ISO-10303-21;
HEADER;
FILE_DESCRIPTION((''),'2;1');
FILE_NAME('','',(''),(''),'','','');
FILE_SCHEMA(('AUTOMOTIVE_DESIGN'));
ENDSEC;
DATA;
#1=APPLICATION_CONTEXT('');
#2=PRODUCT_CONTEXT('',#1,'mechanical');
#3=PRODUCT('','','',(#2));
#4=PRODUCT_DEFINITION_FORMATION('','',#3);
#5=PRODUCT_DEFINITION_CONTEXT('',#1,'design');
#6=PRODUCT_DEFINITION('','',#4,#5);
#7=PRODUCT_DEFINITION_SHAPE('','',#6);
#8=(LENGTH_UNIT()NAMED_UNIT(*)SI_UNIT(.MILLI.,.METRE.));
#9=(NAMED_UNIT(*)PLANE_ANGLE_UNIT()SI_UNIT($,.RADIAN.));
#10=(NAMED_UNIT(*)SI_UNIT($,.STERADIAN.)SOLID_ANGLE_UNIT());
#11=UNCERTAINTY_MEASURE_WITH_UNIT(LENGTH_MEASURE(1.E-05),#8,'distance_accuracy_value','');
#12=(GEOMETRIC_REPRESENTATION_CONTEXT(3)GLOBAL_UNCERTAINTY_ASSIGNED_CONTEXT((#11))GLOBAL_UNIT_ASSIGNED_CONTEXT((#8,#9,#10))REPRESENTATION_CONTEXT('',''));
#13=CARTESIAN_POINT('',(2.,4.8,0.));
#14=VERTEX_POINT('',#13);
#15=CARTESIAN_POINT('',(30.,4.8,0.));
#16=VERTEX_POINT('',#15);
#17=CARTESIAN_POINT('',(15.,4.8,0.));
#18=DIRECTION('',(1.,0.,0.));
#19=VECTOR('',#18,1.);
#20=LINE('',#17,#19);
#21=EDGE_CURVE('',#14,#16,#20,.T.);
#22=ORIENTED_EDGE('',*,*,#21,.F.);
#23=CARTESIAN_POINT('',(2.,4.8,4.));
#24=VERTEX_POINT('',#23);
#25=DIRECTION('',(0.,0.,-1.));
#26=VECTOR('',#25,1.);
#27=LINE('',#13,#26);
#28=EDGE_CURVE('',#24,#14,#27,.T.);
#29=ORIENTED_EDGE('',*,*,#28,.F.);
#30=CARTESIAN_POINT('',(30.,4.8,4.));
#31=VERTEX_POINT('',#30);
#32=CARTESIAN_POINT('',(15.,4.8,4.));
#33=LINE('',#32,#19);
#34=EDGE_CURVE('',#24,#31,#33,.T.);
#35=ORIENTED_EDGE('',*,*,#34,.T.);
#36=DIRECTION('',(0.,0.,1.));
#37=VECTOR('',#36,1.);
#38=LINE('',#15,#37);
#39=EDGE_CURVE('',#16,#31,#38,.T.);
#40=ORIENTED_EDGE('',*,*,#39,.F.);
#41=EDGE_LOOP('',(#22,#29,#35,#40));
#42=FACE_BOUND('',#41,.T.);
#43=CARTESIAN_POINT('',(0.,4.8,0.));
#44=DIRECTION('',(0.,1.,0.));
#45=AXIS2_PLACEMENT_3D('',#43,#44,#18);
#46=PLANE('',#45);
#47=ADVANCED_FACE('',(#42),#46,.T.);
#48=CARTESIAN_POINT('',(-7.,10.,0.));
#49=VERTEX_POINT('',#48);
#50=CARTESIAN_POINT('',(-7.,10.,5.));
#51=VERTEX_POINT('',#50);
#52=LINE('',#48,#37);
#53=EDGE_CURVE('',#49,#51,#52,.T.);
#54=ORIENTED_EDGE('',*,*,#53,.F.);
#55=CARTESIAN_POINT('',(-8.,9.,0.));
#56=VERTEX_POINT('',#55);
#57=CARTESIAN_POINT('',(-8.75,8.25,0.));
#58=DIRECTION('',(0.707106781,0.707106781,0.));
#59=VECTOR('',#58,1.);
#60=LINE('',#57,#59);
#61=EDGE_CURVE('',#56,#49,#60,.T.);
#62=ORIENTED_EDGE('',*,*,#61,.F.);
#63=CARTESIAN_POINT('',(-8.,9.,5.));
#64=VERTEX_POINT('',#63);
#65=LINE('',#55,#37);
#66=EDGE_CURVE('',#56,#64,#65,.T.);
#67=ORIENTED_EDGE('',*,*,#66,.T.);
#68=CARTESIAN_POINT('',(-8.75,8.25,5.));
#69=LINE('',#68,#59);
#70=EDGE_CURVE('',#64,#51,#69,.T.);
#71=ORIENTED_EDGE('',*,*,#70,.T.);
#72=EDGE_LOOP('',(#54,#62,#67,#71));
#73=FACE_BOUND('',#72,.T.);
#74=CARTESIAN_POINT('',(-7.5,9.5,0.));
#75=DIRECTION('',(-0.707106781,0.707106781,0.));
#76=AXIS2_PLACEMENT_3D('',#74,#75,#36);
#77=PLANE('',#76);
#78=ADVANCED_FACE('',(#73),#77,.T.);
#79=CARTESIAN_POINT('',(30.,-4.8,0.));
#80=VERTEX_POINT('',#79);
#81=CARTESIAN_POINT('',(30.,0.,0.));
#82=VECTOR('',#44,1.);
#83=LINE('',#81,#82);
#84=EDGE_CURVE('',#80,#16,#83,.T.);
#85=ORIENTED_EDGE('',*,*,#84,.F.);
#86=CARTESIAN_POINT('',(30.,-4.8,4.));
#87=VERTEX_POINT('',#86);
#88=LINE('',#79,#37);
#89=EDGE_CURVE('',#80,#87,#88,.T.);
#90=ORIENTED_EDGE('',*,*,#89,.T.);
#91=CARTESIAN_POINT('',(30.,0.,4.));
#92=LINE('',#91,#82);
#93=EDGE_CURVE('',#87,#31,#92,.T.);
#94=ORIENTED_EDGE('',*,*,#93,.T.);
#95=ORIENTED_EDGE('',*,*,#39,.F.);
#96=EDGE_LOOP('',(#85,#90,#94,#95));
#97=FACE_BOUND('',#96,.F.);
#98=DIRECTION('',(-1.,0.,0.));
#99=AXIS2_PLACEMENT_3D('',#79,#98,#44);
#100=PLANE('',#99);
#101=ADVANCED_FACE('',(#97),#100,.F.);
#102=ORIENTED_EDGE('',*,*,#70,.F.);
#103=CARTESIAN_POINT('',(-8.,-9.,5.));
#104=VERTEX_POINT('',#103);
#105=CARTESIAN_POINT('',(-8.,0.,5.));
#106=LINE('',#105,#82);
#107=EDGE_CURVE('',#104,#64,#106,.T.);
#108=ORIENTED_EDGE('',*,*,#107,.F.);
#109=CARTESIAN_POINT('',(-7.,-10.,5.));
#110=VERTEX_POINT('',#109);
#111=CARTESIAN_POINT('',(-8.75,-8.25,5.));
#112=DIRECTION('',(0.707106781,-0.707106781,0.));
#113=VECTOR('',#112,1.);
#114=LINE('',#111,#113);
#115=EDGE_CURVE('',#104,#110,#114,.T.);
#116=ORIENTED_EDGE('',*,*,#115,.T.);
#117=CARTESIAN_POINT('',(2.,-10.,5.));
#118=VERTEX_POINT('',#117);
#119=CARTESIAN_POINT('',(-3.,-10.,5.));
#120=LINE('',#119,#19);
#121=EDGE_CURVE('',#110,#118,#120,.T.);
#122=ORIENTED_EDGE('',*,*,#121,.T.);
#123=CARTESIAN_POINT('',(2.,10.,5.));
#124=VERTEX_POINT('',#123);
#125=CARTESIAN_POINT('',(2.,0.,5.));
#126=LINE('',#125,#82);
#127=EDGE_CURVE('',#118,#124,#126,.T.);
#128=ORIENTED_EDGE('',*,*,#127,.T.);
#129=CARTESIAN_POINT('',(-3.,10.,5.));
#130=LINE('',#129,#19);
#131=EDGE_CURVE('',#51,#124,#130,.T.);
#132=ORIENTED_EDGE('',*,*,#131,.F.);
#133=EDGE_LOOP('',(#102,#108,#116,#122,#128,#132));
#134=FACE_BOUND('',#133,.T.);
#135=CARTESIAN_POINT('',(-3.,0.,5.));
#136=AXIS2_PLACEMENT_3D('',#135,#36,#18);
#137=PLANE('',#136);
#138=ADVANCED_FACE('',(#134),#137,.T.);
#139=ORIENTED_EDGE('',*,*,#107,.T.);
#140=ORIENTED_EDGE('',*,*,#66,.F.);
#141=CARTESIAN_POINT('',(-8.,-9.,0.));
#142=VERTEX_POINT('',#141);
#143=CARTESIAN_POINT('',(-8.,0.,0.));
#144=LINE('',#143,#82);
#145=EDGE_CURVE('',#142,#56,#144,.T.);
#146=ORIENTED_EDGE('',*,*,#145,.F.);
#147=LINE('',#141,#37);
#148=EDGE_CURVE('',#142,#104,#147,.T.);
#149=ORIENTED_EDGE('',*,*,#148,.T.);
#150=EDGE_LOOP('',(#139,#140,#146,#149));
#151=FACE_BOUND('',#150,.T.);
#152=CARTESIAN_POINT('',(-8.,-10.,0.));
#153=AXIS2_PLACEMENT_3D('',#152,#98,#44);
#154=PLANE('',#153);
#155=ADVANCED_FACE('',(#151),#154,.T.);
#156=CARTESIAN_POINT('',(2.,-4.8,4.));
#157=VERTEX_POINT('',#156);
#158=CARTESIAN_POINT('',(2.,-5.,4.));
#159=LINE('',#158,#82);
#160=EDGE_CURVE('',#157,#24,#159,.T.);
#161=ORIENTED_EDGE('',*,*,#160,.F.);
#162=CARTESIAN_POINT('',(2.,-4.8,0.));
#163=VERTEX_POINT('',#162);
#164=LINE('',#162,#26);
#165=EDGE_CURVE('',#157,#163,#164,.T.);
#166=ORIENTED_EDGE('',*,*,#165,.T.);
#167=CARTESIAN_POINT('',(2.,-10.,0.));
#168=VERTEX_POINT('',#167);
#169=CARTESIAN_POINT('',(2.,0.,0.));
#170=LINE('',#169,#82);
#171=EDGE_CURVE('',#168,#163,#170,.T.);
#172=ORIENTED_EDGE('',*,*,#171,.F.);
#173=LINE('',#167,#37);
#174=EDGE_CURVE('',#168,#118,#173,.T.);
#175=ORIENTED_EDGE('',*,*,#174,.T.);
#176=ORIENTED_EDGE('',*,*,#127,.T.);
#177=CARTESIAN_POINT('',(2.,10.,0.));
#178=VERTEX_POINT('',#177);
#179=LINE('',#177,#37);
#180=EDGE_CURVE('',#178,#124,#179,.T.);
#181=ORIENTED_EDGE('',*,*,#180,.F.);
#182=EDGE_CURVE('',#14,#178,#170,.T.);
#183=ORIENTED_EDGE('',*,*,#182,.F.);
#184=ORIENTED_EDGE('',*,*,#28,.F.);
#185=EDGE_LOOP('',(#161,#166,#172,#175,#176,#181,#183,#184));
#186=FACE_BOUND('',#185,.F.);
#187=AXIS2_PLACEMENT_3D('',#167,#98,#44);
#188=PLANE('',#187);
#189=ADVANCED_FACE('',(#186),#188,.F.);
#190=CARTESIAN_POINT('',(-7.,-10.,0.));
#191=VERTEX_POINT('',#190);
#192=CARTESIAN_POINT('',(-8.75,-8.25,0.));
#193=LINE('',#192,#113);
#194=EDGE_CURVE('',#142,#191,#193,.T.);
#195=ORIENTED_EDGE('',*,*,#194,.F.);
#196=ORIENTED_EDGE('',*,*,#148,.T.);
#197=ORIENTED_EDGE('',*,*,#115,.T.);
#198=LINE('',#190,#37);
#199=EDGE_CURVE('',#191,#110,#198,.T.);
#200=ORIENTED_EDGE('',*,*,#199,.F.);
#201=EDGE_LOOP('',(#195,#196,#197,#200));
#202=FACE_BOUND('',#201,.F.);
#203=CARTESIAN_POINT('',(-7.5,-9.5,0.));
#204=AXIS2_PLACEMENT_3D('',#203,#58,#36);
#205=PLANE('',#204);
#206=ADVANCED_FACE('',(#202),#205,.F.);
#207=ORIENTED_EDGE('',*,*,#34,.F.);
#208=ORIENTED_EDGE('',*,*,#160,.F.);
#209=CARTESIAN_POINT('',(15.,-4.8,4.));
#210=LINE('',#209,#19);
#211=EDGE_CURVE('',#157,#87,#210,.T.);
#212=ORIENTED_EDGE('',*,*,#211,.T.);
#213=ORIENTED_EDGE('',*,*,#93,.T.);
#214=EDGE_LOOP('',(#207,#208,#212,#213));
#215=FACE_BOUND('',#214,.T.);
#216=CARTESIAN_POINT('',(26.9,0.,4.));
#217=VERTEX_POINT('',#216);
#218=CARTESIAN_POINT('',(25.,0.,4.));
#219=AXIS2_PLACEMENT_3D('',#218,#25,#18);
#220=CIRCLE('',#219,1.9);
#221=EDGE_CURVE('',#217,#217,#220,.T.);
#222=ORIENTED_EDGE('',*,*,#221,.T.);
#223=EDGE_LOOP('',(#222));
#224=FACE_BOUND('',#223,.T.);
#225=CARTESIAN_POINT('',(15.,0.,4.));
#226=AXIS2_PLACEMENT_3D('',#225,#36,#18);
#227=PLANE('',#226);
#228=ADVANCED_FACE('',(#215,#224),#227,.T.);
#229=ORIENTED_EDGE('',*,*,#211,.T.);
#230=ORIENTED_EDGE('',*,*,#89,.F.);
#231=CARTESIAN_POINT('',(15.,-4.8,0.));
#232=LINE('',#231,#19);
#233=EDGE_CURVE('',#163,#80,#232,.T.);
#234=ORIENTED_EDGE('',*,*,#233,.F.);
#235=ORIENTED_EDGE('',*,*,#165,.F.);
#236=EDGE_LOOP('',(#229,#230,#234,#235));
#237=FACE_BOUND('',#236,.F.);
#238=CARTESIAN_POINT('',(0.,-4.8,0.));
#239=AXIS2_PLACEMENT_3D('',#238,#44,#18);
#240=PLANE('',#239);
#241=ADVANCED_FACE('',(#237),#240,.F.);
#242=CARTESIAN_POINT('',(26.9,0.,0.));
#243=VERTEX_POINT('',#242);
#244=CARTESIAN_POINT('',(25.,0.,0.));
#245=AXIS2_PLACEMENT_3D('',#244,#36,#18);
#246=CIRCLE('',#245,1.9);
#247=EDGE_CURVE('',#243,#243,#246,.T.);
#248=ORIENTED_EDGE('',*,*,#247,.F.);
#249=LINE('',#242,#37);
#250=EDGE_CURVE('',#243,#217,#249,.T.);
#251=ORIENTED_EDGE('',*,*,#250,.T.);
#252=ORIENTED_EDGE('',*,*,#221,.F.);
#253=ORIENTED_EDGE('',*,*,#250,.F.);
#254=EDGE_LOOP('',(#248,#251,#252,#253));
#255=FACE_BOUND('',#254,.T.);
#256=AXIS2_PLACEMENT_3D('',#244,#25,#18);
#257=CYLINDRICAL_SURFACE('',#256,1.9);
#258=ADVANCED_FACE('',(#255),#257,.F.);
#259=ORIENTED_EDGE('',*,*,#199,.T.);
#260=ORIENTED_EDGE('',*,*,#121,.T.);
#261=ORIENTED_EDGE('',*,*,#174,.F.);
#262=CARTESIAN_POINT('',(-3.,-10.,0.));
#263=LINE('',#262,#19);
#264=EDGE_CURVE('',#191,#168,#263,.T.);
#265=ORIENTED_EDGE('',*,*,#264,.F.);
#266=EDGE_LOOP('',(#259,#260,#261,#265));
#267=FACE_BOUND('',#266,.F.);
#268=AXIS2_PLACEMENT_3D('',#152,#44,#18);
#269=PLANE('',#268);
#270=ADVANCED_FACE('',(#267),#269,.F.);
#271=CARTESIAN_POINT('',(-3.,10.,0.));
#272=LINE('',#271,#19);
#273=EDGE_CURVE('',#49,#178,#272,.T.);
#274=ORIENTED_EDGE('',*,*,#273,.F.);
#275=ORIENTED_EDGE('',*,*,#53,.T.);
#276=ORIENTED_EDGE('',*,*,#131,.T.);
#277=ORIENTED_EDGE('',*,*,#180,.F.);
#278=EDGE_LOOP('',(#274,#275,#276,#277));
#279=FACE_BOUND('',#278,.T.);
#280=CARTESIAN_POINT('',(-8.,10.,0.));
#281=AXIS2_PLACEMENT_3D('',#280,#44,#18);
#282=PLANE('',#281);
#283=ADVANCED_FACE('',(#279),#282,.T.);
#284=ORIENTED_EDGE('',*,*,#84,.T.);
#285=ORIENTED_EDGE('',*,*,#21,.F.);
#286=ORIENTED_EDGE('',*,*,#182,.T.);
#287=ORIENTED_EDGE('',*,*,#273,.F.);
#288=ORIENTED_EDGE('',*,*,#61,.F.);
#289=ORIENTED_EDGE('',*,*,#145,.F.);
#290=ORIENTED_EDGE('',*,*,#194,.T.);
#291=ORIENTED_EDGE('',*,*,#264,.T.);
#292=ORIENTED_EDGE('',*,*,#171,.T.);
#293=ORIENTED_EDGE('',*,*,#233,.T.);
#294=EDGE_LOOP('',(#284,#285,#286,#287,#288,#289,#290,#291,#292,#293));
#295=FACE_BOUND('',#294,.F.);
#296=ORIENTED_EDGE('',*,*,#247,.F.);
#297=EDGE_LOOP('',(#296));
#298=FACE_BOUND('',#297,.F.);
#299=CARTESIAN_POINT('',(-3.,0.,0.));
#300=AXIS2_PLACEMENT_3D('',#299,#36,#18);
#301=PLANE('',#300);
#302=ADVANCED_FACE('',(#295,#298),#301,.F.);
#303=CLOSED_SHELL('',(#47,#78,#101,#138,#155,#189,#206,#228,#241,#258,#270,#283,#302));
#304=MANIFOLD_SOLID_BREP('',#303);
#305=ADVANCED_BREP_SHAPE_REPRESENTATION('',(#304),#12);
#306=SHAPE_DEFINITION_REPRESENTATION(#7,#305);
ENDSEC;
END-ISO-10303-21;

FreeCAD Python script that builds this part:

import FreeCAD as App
import Part
import Sketcher
from FreeCAD import Vector


def edges_at(feature, points):
    """Names of the edges that pass closest to the given points."""
    edges = feature.Shape.Edges
    near = lambda p: min(range(len(edges)), key=lambda i: edges[i].distToShape(Part.Vertex(*p))[0])
    return sorted({f"Edge{near(p) + 1}" for p in points})


def add_polygon(sketch, points):
    """Adds a closed chain of lines whose ends are joined by coincident constraints."""
    first, n = sketch.GeometryCount, len(points)
    for a, b in zip(points, points[1:] + points[:1]):
        sketch.addGeometry(Part.LineSegment(App.Vector(*a, 0), App.Vector(*b, 0)), False)
    for i in range(n):
        sketch.addConstraint(Sketcher.Constraint("Coincident", first + i, 2, first + (i + 1) % n, 1))

doc = App.newDocument("Part")
params = doc.addObject("Spreadsheet::Sheet", "Params")
for row, (alias, value) in enumerate([
    ("sketch1_diameter", "3.8 mm"),
    ("pad1_length", "5 mm"),
    ("sketch2_width", "30 mm"),
    ("sketch2_height", "9.6 mm"),
    ("pad2_length", "4 mm"),
    ("sketch3_width", "10 mm"),
    ("sketch3_height", "20 mm"),
    ("pad3_length", "5 mm"),
    ("chamfer_size", "1 mm"),
], start=1):
    params.set(f"A{row}", alias)
    params.set(f"B{row}", "=" + value)
    params.setAlias(f"B{row}", alias)

body = doc.addObject("PartDesign::Body", "Body")

sketch1 = body.newObject("Sketcher::SketchObject", "Sketch")
sketch1.AttachmentSupport = (doc.getObject("XY_Plane"), [""])
sketch1.MapMode = "FlatFace"
sketch1.addGeometry(Part.Circle(Vector(25, 0, 0), Vector(0, 0, 1), 1.9), False)
sketch1.addConstraint(Sketcher.Constraint("PointOnObject", 0, 3, -1))
sketch1.addConstraint(Sketcher.Constraint("Diameter", 0, 3.8))
sketch1.addConstraint(Sketcher.Constraint("DistanceX", -1, 1, 0, 3, 25.0))
sketch1.setExpression("Constraints[1]", "Params.sketch1_diameter")
pad1 = body.newObject("PartDesign::Pad", "Pad")
pad1.Profile = sketch1
pad1.setExpression("Length", "Params.pad1_length")
body2 = doc.addObject("PartDesign::Body", "Body001")

sketch2 = body2.newObject("Sketcher::SketchObject", "Sketch001")
sketch2.AttachmentSupport = (doc.getObject("XY_Plane001"), [""])
sketch2.MapMode = "FlatFace"
add_polygon(sketch2, [(0, 5), (0, -5), (30, -5), (30, 5)])
sketch2.addConstraint(Sketcher.Constraint("Vertical", 0))
sketch2.addConstraint(Sketcher.Constraint("Horizontal", 1))
sketch2.addConstraint(Sketcher.Constraint("Vertical", 2))
sketch2.addConstraint(Sketcher.Constraint("Horizontal", 3))
sketch2.addConstraint(Sketcher.Constraint("Symmetric", 0, 2, 3, 2, -1, 1))
sketch2.addConstraint(Sketcher.Constraint("DistanceX", 1, 1, 1, 2, 30.0))
sketch2.addConstraint(Sketcher.Constraint("DistanceY", 0, 2, 0, 1, 9.6))
sketch2.setExpression("Constraints[9]", "Params.sketch2_width")
sketch2.setExpression("Constraints[10]", "Params.sketch2_height")
pad2 = body2.newObject("PartDesign::Pad", "Pad001")
pad2.Profile = sketch2
pad2.setExpression("Length", "Params.pad2_length")
doc.recompute()

boolean = body2.newObject("PartDesign::Boolean", "Boolean")
boolean.Type = "Cut"
boolean.addObjects([body])
body3 = doc.addObject("PartDesign::Body", "Body002")

sketch3 = body3.newObject("Sketcher::SketchObject", "Sketch002")
sketch3.AttachmentSupport = (doc.getObject("XY_Plane002"), [""])
sketch3.MapMode = "FlatFace"
add_polygon(sketch3, [(-8, 10), (-8, -10), (2, -10), (2, 10)])
sketch3.addConstraint(Sketcher.Constraint("Vertical", 0))
sketch3.addConstraint(Sketcher.Constraint("Horizontal", 1))
sketch3.addConstraint(Sketcher.Constraint("Vertical", 2))
sketch3.addConstraint(Sketcher.Constraint("Horizontal", 3))
sketch3.addConstraint(Sketcher.Constraint("DistanceX", 1, 1, 1, 2, 10.0))
sketch3.addConstraint(Sketcher.Constraint("DistanceY", 0, 2, 0, 1, 20.0))
sketch3.addConstraint(Sketcher.Constraint("DistanceX", 0, 2, -1, 1, 8.0))
sketch3.addConstraint(Sketcher.Constraint("DistanceY", 0, 2, -1, 1, 10.0))
sketch3.setExpression("Constraints[8]", "Params.sketch3_width")
sketch3.setExpression("Constraints[9]", "Params.sketch3_height")
pad3 = body3.newObject("PartDesign::Pad", "Pad002")
pad3.Profile = sketch3
pad3.setExpression("Length", "Params.pad3_length")
doc.recompute()

chamfer = body3.newObject("PartDesign::Chamfer", "Chamfer")
chamfer.Base = (pad3, edges_at(pad3, [(-8, -10, 2.5), (-8, 10, 2.5)]))
chamfer.setExpression("Size", "Params.chamfer_size")
doc.recompute()

boolean2 = body3.newObject("PartDesign::Boolean", "Boolean001")
boolean2.Type = "Fuse"
boolean2.addObjects([body2])

doc.recompute()
